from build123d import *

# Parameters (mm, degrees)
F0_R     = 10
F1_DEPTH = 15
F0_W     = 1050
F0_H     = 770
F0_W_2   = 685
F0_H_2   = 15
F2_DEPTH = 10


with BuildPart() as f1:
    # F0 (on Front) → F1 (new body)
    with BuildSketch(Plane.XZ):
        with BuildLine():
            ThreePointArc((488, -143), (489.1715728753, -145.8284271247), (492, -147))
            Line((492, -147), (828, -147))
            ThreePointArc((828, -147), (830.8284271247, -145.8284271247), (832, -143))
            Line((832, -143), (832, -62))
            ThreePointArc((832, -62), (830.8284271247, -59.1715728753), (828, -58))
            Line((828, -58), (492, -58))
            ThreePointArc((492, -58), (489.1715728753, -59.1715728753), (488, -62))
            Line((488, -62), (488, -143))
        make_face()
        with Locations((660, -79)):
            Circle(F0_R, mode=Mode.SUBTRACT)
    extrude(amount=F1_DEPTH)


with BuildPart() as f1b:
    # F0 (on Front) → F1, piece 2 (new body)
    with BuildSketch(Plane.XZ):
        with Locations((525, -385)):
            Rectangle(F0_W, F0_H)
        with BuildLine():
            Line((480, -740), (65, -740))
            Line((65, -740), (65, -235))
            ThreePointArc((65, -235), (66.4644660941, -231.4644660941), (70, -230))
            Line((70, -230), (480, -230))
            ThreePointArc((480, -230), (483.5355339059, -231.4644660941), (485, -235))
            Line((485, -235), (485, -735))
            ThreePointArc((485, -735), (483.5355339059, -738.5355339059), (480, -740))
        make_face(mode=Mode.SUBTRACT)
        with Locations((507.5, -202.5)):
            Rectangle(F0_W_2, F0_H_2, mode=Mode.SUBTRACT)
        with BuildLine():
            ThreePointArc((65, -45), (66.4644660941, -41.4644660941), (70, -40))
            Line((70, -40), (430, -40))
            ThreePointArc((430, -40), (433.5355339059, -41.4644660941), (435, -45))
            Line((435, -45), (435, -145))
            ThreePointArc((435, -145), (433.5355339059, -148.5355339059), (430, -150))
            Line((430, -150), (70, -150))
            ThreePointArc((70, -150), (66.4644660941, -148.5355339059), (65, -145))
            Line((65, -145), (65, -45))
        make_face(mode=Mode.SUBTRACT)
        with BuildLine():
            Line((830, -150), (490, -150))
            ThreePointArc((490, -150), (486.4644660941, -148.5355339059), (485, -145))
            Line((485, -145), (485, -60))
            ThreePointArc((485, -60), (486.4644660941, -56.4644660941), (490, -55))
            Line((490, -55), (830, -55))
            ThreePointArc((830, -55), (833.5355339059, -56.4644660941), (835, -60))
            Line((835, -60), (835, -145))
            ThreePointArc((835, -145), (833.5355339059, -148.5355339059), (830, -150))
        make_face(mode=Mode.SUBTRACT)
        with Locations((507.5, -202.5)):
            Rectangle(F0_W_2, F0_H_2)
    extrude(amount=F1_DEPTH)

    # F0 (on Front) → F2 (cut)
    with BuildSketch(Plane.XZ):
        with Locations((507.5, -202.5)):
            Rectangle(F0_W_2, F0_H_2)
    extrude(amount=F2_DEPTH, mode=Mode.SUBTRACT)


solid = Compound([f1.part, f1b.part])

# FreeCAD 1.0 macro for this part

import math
import FreeCAD as App
import Part
import Sketcher
Q = App.Units.Quantity


def add_polygon(sketch, points):
    """Adds a closed chain of lines whose ends are joined by coincident constraints."""
    first, n = sketch.GeometryCount, len(points)
    for a, b in zip(points, points[1:] + points[:1]):
        sketch.addGeometry(Part.LineSegment(App.Vector(*a, 0), App.Vector(*b, 0)), False)
    for i in range(n):
        sketch.addConstraint(Sketcher.Constraint("Coincident", first + i, 2, first + (i + 1) % n, 1))

doc = App.newDocument("Part")
params = doc.addObject("Spreadsheet::Sheet", "Params")
for row, (alias, value) in enumerate([
    ("sketch1_diameter", "20 mm"),
    ("sketch1_radius", "4 mm"),
    ("sketch1_width", "336 mm"),
    ("sketch1_height", "81 mm"),
    ("pad1_length", "15 mm"),
    ("sketch2_radius", "5 mm"),
    ("sketch2_width", "1050 mm"),
    ("sketch2_width2", "415 mm"),
    ("sketch2_width3", "360 mm"),
    ("sketch2_width4", "340 mm"),
    ("pad2_length", "15 mm"),
    ("sketch3_width", "685 mm"),
    ("sketch3_height", "15 mm"),
    ("pocket1_length", "10 mm"),
], start=1):
    params.set(f"A{row}", alias)
    params.set(f"B{row}", "=" + value)
    params.setAlias(f"B{row}", alias)

body = doc.addObject("PartDesign::Body", "Body")

sketch1 = body.newObject("Sketcher::SketchObject", "Sketch")
sketch1.AttachmentSupport = (doc.getObject("XZ_Plane"), [""])
sketch1.MapMode = "FlatFace"
sketch1.addGeometry(Part.ArcOfCircle(Part.Circle(App.Vector(492, -143, 0), App.Vector(0, 0, 1), 4), math.radians(180), math.radians(270)), False)
sketch1.addGeometry(Part.LineSegment(App.Vector(492, -147, 0), App.Vector(828, -147, 0)), False)
sketch1.addGeometry(Part.ArcOfCircle(Part.Circle(App.Vector(828, -143, 0), App.Vector(0, 0, 1), 4), math.radians(-90), math.radians(0)), False)
sketch1.addGeometry(Part.LineSegment(App.Vector(832, -143, 0), App.Vector(832, -62, 0)), False)
sketch1.addGeometry(Part.ArcOfCircle(Part.Circle(App.Vector(828, -62, 0), App.Vector(0, 0, 1), 4), math.radians(0), math.radians(90)), False)
sketch1.addGeometry(Part.LineSegment(App.Vector(828, -58, 0), App.Vector(492, -58, 0)), False)
sketch1.addGeometry(Part.ArcOfCircle(Part.Circle(App.Vector(492, -62, 0), App.Vector(0, 0, 1), 4), math.radians(90), math.radians(180)), False)
sketch1.addGeometry(Part.LineSegment(App.Vector(488, -62, 0), App.Vector(488, -143, 0)), False)
sketch1.addGeometry(Part.Circle(App.Vector(660, -79, 0), App.Vector(0, 0, 1), 10), False)
sketch1.addConstraint(Sketcher.Constraint("Tangent", 0, 2, 1, 1))
sketch1.addConstraint(Sketcher.Constraint("Tangent", 1, 2, 2, 1))
sketch1.addConstraint(Sketcher.Constraint("Tangent", 2, 2, 3, 1))
sketch1.addConstraint(Sketcher.Constraint("Tangent", 3, 2, 4, 1))
sketch1.addConstraint(Sketcher.Constraint("Tangent", 4, 2, 5, 1))
sketch1.addConstraint(Sketcher.Constraint("Tangent", 5, 2, 6, 1))
sketch1.addConstraint(Sketcher.Constraint("Tangent", 6, 2, 7, 1))
sketch1.addConstraint(Sketcher.Constraint("Tangent", 7, 2, 0, 1))
sketch1.addConstraint(Sketcher.Constraint("Horizontal", 1))
sketch1.addConstraint(Sketcher.Constraint("Vertical", 3))
sketch1.addConstraint(Sketcher.Constraint("Horizontal", 5))
sketch1.addConstraint(Sketcher.Constraint("Vertical", 7))
sketch1.addConstraint(Sketcher.Constraint("Equal", 0, 2))
sketch1.addConstraint(Sketcher.Constraint("Equal", 2, 4))
sketch1.addConstraint(Sketcher.Constraint("Equal", 4, 6))
sketch1.addConstraint(Sketcher.Constraint("Diameter", 8, Q("20 mm")))
sketch1.addConstraint(Sketcher.Constraint("Radius", 0, Q("4 mm")))
sketch1.addConstraint(Sketcher.Constraint("DistanceX", 1, 1, 1, 2, Q("336 mm")))
sketch1.addConstraint(Sketcher.Constraint("DistanceY", 3, 1, 3, 2, Q("81 mm")))
sketch1.addConstraint(Sketcher.Constraint("DistanceX", -1, 1, 0, 3, Q("492 mm")))
sketch1.addConstraint(Sketcher.Constraint("DistanceY", 0, 3, -1, 1, Q("143 mm")))
sketch1.addConstraint(Sketcher.Constraint("DistanceX", -1, 1, 8, 3, Q("660 mm")))
sketch1.addConstraint(Sketcher.Constraint("DistanceY", 8, 3, -1, 1, Q("79 mm")))
sketch1.setExpression("Constraints[15]", "Params.sketch1_diameter")
sketch1.setExpression("Constraints[16]", "Params.sketch1_radius")
sketch1.setExpression("Constraints[17]", "Params.sketch1_width")
sketch1.setExpression("Constraints[18]", "Params.sketch1_height")
pad1 = body.newObject("PartDesign::Pad", "Pad")
pad1.Profile = sketch1
pad1.setExpression("Length", "Params.pad1_length")
body2 = doc.addObject("PartDesign::Body", "Body001")

sketch2 = body2.newObject("Sketcher::SketchObject", "Sketch001")
sketch2.AttachmentSupport = (doc.getObject("XZ_Plane001"), [""])
sketch2.MapMode = "FlatFace"
add_polygon(sketch2, [(0, 0), (0, -770), (1050, -770), (1050, 0)])
sketch2.addGeometry(Part.ArcOfCircle(Part.Circle(App.Vector(480, -735, 0), App.Vector(0, 0, 1), 5), math.radians(-90), math.radians(0)), False)
sketch2.addGeometry(Part.LineSegment(App.Vector(480, -740, 0), App.Vector(65, -740, 0)), False)
sketch2.addGeometry(Part.LineSegment(App.Vector(65, -740, 0), App.Vector(65, -235, 0)), False)
sketch2.addGeometry(Part.ArcOfCircle(Part.Circle(App.Vector(70, -235, 0), App.Vector(0, 0, 1), 5), math.radians(90), math.radians(180)), False)
sketch2.addGeometry(Part.LineSegment(App.Vector(70, -230, 0), App.Vector(480, -230, 0)), False)
sketch2.addGeometry(Part.ArcOfCircle(Part.Circle(App.Vector(480, -235, 0), App.Vector(0, 0, 1), 5), math.radians(0), math.radians(90)), False)
sketch2.addGeometry(Part.LineSegment(App.Vector(485, -235, 0), App.Vector(485, -735, 0)), False)
sketch2.addGeometry(Part.LineSegment(App.Vector(65, -145, 0), App.Vector(65, -45, 0)), False)
sketch2.addGeometry(Part.ArcOfCircle(Part.Circle(App.Vector(70, -45, 0), App.Vector(0, 0, 1), 5), math.radians(90), math.radians(180)), False)
sketch2.addGeometry(Part.LineSegment(App.Vector(70, -40, 0), App.Vector(430, -40, 0)), False)
sketch2.addGeometry(Part.ArcOfCircle(Part.Circle(App.Vector(430, -45, 0), App.Vector(0, 0, 1), 5), math.radians(0), math.radians(90)), False)
sketch2.addGeometry(Part.LineSegment(App.Vector(435, -45, 0), App.Vector(435, -145, 0)), False)
sketch2.addGeometry(Part.ArcOfCircle(Part.Circle(App.Vector(430, -145, 0), App.Vector(0, 0, 1), 5), math.radians(-90), math.radians(0)), False)
sketch2.addGeometry(Part.LineSegment(App.Vector(430, -150, 0), App.Vector(70, -150, 0)), False)
sketch2.addGeometry(Part.ArcOfCircle(Part.Circle(App.Vector(70, -145, 0), App.Vector(0, 0, 1), 5), math.radians(180), math.radians(270)), False)
sketch2.addGeometry(Part.ArcOfCircle(Part.Circle(App.Vector(830, -145, 0), App.Vector(0, 0, 1), 5), math.radians(-90), math.radians(0)), False)
sketch2.addGeometry(Part.LineSegment(App.Vector(830, -150, 0), App.Vector(490, -150, 0)), False)
sketch2.addGeometry(Part.ArcOfCircle(Part.Circle(App.Vector(490, -145, 0), App.Vector(0, 0, 1), 5), math.radians(180), math.radians(270)), False)
sketch2.addGeometry(Part.LineSegment(App.Vector(485, -145, 0), App.Vector(485, -60, 0)), False)
sketch2.addGeometry(Part.ArcOfCircle(Part.Circle(App.Vector(490, -60, 0), App.Vector(0, 0, 1), 5), math.radians(90), math.radians(180)), False)
sketch2.addGeometry(Part.LineSegment(App.Vector(490, -55, 0), App.Vector(830, -55, 0)), False)
sketch2.addGeometry(Part.ArcOfCircle(Part.Circle(App.Vector(830, -60, 0), App.Vector(0, 0, 1), 5), math.radians(0), math.radians(90)), False)
sketch2.addGeometry(Part.LineSegment(App.Vector(835, -60, 0), App.Vector(835, -145, 0)), False)
sketch2.addConstraint(Sketcher.Constraint("Tangent", 4, 1, 5, 1))
sketch2.addConstraint(Sketcher.Constraint("Coincident", 5, 2, 6, 1))
sketch2.addConstraint(Sketcher.Constraint("Tangent", 6, 2, 7, 2))
sketch2.addConstraint(Sketcher.Constraint("Tangent", 7, 1, 8, 1))
sketch2.addConstraint(Sketcher.Constraint("Tangent", 8, 2, 9, 2))
sketch2.addConstraint(Sketcher.Constraint("Tangent", 9, 1, 10, 1))
sketch2.addConstraint(Sketcher.Constraint("Tangent", 10, 2, 4, 2))
sketch2.addConstraint(Sketcher.Constraint("Tangent", 11, 2, 12, 2))
sketch2.addConstraint(Sketcher.Constraint("Tangent", 12, 1, 13, 1))
sketch2.addConstraint(Sketcher.Constraint("Tangent", 13, 2, 14, 2))
sketch2.addConstraint(Sketcher.Constraint("Tangent", 14, 1, 15, 1))
sketch2.addConstraint(Sketcher.Constraint("Tangent", 15, 2, 16, 2))
sketch2.addConstraint(Sketcher.Constraint("Tangent", 16, 1, 17, 1))
sketch2.addConstraint(Sketcher.Constraint("Tangent", 17, 2, 18, 2))
sketch2.addConstraint(Sketcher.Constraint("Tangent", 18, 1, 11, 1))
sketch2.addConstraint(Sketcher.Constraint("Tangent", 19, 1, 20, 1))
sketch2.addConstraint(Sketcher.Constraint("Tangent", 20, 2, 21, 2))
sketch2.addConstraint(Sketcher.Constraint("Tangent", 21, 1, 22, 1))
sketch2.addConstraint(Sketcher.Constraint("Tangent", 22, 2, 23, 2))
sketch2.addConstraint(Sketcher.Constraint("Tangent", 23, 1, 24, 1))
sketch2.addConstraint(Sketcher.Constraint("Tangent", 24, 2, 25, 2))
sketch2.addConstraint(Sketcher.Constraint("Tangent", 25, 1, 26, 1))
sketch2.addConstraint(Sketcher.Constraint("Tangent", 26, 2, 19, 2))
sketch2.addConstraint(Sketcher.Constraint("Vertical", 0))
sketch2.addConstraint(Sketcher.Constraint("Horizontal", 1))
sketch2.addConstraint(Sketcher.Constraint("Vertical", 2))
sketch2.addConstraint(Sketcher.Constraint("Horizontal", 3))
sketch2.addConstraint(Sketcher.Constraint("Horizontal", 5))
sketch2.addConstraint(Sketcher.Constraint("Vertical", 6))
sketch2.addConstraint(Sketcher.Constraint("Horizontal", 8))
sketch2.addConstraint(Sketcher.Constraint("Vertical", 10))
sketch2.addConstraint(Sketcher.Constraint("Vertical", 11))
sketch2.addConstraint(Sketcher.Constraint("Horizontal", 13))
sketch2.addConstraint(Sketcher.Constraint("Vertical", 15))
sketch2.addConstraint(Sketcher.Constraint("Horizontal", 17))
sketch2.addConstraint(Sketcher.Constraint("Horizontal", 20))
sketch2.addConstraint(Sketcher.Constraint("Vertical", 22))
sketch2.addConstraint(Sketcher.Constraint("Horizontal", 24))
sketch2.addConstraint(Sketcher.Constraint("Vertical", 26))
sketch2.addConstraint(Sketcher.Constraint("Coincident", 3, 2, -1, 1))
sketch2.addConstraint(Sketcher.Constraint("Equal", 4, 7))
sketch2.addConstraint(Sketcher.Constraint("Equal", 7, 9))
sketch2.addConstraint(Sketcher.Constraint("Equal", 9, 12))
sketch2.addConstraint(Sketcher.Constraint("Equal", 12, 14))
sketch2.addConstraint(Sketcher.Constraint("Equal", 14, 16))
sketch2.addConstraint(Sketcher.Constraint("Equal", 16, 18))
sketch2.addConstraint(Sketcher.Constraint("Equal", 18, 19))
sketch2.addConstraint(Sketcher.Constraint("Equal", 19, 21))
sketch2.addConstraint(Sketcher.Constraint("Equal", 21, 23))
sketch2.addConstraint(Sketcher.Constraint("Equal", 23, 25))
sketch2.addConstraint(Sketcher.Constraint("Horizontal", 18, 3, 19, 3))
sketch2.addConstraint(Sketcher.Constraint("Vertical", 7, 3, 12, 3))
sketch2.addConstraint(Sketcher.Constraint("Vertical", 10, 2, 21, 1))
sketch2.addConstraint(Sketcher.Constraint("Radius", 4, Q("5 mm")))
sketch2.addConstraint(Sketcher.Constraint("DistanceX", 1, 1, 1, 2, Q("1050 mm")))
sketch2.addConstraint(Sketcher.Constraint("DistanceX", 5, 2, 5, 1, Q("415 mm")))
sketch2.addConstraint(Sketcher.Constraint("DistanceX", 13, 1, 13, 2, Q("360 mm")))
sketch2.addConstraint(Sketcher.Constraint("DistanceX", 20, 2, 20, 1, Q("340 mm")))
sketch2.addConstraint(Sketcher.Constraint("DistanceY", 0, 2, 0, 1, Q("770 mm")))
sketch2.addConstraint(Sketcher.Constraint("DistanceY", 6, 1, 6, 2, Q("505 mm")))
sketch2.addConstraint(Sketcher.Constraint("DistanceY", 11, 1, 11, 2, Q("100 mm")))
sketch2.addConstraint(Sketcher.Constraint("DistanceY", 22, 1, 22, 2, Q("85 mm")))
sketch2.addConstraint(Sketcher.Constraint("DistanceX", -1, 1, 4, 3, Q("480 mm")))
sketch2.addConstraint(Sketcher.Constraint("DistanceY", 4, 3, -1, 1, Q("735 mm")))
sketch2.addConstraint(Sketcher.Constraint("DistanceY", 12, 3, -1, 1, Q("45 mm")))
sketch2.setExpression("Constraints[57]", "Params.sketch2_radius")
sketch2.setExpression("Constraints[58]", "Params.sketch2_width")
sketch2.setExpression("Constraints[59]", "Params.sketch2_width2")
sketch2.setExpression("Constraints[60]", "Params.sketch2_width3")
sketch2.setExpression("Constraints[61]", "Params.sketch2_width4")
pad2 = body2.newObject("PartDesign::Pad", "Pad001")
pad2.Profile = sketch2
pad2.setExpression("Length", "Params.pad2_length")

sketch3 = body2.newObject("Sketcher::SketchObject", "Sketch002")
sketch3.AttachmentSupport = (doc.getObject("XZ_Plane001"), [""])
sketch3.MapMode = "FlatFace"
add_polygon(sketch3, [(165, -195), (165, -210), (850, -210), (850, -195)])
sketch3.addConstraint(Sketcher.Constraint("Vertical", 0))
sketch3.addConstraint(Sketcher.Constraint("Horizontal", 1))
sketch3.addConstraint(Sketcher.Constraint("Vertical", 2))
sketch3.addConstraint(Sketcher.Constraint("Horizontal", 3))
sketch3.addConstraint(Sketcher.Constraint("DistanceX", 1, 1, 1, 2, Q("685 mm")))
sketch3.addConstraint(Sketcher.Constraint("DistanceY", 0, 2, 0, 1, Q("15 mm")))
sketch3.addConstraint(Sketcher.Constraint("DistanceX", -1, 1, 0, 2, Q("165 mm")))
sketch3.addConstraint(Sketcher.Constraint("DistanceY", 0, 2, -1, 1, Q("210 mm")))
sketch3.setExpression("Constraints[8]", "Params.sketch3_width")
sketch3.setExpression("Constraints[9]", "Params.sketch3_height")
pocket1 = body2.newObject("PartDesign::Pocket", "Pocket")
pocket1.Profile = sketch3
pocket1.setExpression("Length", "Params.pocket1_length")
pocket1.Reversed = True

doc.recompute()
